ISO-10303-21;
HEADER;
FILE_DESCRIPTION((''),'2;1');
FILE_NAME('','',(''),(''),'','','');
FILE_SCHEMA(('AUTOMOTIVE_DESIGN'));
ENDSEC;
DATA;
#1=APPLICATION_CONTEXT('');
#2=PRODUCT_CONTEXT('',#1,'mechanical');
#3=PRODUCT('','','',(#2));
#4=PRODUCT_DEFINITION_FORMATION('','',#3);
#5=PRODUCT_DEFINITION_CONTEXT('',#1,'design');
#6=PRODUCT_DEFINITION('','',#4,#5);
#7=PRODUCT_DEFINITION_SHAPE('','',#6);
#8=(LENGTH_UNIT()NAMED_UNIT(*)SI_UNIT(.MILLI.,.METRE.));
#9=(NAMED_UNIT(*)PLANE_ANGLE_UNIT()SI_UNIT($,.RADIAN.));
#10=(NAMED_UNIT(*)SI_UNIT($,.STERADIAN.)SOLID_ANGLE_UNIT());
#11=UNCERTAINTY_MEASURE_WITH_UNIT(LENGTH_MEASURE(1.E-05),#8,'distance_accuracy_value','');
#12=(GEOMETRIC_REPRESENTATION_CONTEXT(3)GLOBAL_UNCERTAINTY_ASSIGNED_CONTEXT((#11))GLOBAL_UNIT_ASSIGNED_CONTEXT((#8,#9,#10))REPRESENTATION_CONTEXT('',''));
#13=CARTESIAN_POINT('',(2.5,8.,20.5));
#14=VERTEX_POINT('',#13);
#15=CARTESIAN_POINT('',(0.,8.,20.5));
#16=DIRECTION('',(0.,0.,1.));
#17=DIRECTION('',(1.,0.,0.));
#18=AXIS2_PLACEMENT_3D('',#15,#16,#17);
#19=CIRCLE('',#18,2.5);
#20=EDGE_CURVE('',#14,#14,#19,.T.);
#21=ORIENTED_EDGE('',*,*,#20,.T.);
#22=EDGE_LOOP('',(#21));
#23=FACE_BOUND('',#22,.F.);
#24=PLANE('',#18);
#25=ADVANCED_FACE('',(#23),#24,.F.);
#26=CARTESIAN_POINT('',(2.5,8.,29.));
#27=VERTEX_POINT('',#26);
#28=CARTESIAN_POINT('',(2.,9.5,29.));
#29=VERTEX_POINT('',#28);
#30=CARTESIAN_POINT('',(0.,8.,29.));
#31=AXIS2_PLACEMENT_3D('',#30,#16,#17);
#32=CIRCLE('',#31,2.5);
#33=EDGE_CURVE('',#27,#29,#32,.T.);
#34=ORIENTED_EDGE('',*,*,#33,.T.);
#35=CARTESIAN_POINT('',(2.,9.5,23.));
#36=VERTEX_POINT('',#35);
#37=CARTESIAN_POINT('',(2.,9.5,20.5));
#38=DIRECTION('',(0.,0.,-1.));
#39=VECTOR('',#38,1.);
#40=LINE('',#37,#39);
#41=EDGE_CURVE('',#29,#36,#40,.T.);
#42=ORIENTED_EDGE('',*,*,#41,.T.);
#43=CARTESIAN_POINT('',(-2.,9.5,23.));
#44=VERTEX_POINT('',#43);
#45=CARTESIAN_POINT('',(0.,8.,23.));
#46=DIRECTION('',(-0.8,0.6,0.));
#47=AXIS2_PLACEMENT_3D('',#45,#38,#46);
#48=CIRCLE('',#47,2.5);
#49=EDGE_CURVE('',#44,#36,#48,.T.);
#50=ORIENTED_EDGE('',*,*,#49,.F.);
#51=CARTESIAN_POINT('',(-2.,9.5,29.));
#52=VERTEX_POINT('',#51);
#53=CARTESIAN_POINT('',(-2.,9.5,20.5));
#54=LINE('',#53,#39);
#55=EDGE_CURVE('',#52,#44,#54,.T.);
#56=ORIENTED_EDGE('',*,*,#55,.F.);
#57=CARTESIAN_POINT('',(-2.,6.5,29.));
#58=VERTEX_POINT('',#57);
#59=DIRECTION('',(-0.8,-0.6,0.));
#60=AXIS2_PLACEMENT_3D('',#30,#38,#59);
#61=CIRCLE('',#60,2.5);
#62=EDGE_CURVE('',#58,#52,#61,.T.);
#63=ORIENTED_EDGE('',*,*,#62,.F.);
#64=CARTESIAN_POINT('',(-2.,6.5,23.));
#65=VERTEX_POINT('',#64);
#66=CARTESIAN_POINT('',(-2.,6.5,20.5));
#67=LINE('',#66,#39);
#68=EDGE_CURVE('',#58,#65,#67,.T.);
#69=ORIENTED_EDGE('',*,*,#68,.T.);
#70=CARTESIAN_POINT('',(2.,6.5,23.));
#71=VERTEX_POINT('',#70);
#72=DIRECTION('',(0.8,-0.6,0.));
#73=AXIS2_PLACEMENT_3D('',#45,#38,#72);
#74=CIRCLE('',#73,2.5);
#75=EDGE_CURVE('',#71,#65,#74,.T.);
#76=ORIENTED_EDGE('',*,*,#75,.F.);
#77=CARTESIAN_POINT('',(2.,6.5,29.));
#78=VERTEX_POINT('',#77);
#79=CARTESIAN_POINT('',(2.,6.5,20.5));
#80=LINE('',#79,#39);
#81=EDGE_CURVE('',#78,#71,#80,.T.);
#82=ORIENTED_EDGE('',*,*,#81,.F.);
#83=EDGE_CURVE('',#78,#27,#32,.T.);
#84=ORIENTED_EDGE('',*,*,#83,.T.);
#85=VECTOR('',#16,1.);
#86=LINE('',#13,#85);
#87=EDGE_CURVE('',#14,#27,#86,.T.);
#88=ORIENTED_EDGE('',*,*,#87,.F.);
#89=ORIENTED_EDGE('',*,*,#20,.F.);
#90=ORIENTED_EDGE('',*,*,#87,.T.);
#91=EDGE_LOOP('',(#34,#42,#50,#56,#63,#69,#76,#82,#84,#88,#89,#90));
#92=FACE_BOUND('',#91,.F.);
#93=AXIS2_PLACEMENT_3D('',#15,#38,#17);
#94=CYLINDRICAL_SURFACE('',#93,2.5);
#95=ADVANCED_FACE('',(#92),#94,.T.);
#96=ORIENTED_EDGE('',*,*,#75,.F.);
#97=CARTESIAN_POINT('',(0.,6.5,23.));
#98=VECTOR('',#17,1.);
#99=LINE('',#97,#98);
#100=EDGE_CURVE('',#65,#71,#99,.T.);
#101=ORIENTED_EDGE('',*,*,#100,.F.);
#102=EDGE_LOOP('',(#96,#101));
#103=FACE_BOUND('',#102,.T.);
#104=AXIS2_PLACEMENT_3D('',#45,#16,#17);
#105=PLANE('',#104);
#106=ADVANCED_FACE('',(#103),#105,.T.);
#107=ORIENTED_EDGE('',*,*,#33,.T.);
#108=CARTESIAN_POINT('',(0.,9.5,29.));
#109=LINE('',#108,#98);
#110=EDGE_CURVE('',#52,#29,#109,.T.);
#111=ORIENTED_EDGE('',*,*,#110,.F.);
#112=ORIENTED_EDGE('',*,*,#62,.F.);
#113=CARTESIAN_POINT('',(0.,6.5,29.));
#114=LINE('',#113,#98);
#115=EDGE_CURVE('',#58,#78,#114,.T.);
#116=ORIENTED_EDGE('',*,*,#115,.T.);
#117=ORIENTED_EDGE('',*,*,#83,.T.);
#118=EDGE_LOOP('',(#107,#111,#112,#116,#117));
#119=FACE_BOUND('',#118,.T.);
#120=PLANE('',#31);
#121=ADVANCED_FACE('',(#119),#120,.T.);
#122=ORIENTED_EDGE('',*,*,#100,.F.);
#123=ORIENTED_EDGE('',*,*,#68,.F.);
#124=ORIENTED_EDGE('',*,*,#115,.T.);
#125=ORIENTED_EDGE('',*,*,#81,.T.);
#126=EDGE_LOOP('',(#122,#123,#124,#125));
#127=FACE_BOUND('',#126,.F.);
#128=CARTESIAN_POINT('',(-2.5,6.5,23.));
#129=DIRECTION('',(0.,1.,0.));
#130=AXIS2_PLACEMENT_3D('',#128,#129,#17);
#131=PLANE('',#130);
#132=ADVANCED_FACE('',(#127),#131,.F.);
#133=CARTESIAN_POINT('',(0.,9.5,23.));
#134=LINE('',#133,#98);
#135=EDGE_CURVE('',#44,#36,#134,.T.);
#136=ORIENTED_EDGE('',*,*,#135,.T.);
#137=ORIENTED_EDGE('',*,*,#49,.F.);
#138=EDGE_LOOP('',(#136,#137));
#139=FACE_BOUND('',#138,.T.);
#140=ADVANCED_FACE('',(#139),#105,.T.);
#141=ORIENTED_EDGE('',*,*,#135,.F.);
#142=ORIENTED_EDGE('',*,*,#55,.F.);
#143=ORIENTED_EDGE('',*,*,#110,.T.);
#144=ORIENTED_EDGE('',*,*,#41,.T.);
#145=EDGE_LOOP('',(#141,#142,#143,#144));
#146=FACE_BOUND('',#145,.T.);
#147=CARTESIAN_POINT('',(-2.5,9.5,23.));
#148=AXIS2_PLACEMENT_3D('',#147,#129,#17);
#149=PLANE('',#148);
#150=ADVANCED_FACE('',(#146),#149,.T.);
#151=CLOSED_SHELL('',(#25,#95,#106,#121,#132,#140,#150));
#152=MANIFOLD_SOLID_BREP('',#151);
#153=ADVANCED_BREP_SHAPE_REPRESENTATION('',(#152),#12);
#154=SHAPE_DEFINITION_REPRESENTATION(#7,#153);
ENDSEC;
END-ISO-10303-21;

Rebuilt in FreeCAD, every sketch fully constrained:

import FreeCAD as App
import Part
import Sketcher
from FreeCAD import Vector
Q = App.Units.Quantity

doc = App.newDocument("Part")
body = doc.addObject("PartDesign::Body", "Body")

# Sketch on XY plane
sketch1 = body.newObject("Sketcher::SketchObject", "Sketch")
sketch1.AttachmentSupport = (doc.getObject("XY_Plane"), [""])
sketch1.MapMode = "FlatFace"
sketch1.AttachmentOffset = App.Placement(Vector(0, 0, 23), App.Rotation())
sketch1.addGeometry([
    Part.LineSegment(Vector(-2.5, 1.5, 0), Vector(-2.5, -1.5, 0)),
    Part.LineSegment(Vector(-2.5, -1.5, 0), Vector(2.5, -1.5, 0)),
    Part.LineSegment(Vector(2.5, -1.5, 0), Vector(2.5, 1.5, 0)),
    Part.LineSegment(Vector(2.5, 1.5, 0), Vector(-2.5, 1.5, 0)),
], False)
sketch1.addConstraint([
    Sketcher.Constraint("Coincident", 0, 2, 1, 1),
    Sketcher.Constraint("Coincident", 1, 2, 2, 1),
    Sketcher.Constraint("Coincident", 2, 2, 3, 1),
    Sketcher.Constraint("Coincident", 3, 2, 0, 1),
    Sketcher.Constraint("Vertical", 0),
    Sketcher.Constraint("Horizontal", 1),
    Sketcher.Constraint("Vertical", 2),
    Sketcher.Constraint("Horizontal", 3),
    Sketcher.Constraint("Symmetric", 0, 2, 2, 2, -1, 1),
    Sketcher.Constraint("DistanceX", 1, 1, 1, 2, Q("5 mm")),
    Sketcher.Constraint("DistanceY", 0, 2, 0, 1, Q("3 mm")),
])
pad1 = body.newObject("PartDesign::Pad", "Pad")
pad1.Profile = sketch1
pad1.Length = 6
body2 = doc.addObject("PartDesign::Body", "Body001")

# Sketch on XY plane
sketch2 = body2.newObject("Sketcher::SketchObject", "Sketch001")
sketch2.AttachmentSupport = (doc.getObject("XY_Plane001"), [""])
sketch2.MapMode = "FlatFace"
sketch2.AttachmentOffset = App.Placement(Vector(0, 0, 19), App.Rotation())
sketch2.addGeometry([
    Part.LineSegment(Vector(-2, 2, 0), Vector(-2, -2, 0)),
    Part.LineSegment(Vector(-2, -2, 0), Vector(2, -2, 0)),
    Part.LineSegment(Vector(2, -2, 0), Vector(2, 2, 0)),
    Part.LineSegment(Vector(2, 2, 0), Vector(-2, 2, 0)),
], False)
sketch2.addConstraint([
    Sketcher.Constraint("Coincident", 0, 2, 1, 1),
    Sketcher.Constraint("Coincident", 1, 2, 2, 1),
    Sketcher.Constraint("Coincident", 2, 2, 3, 1),
    Sketcher.Constraint("Coincident", 3, 2, 0, 1),
    Sketcher.Constraint("Vertical", 0),
    Sketcher.Constraint("Horizontal", 1),
    Sketcher.Constraint("Vertical", 2),
    Sketcher.Constraint("Horizontal", 3),
    Sketcher.Constraint("Symmetric", 0, 2, 2, 2, -1, 1),
    Sketcher.Constraint("Equal", 3, 0),
    Sketcher.Constraint("DistanceX", 1, 1, 1, 2, Q("5 mm")),
])
pad2 = body2.newObject("PartDesign::Pad", "Pad001")
pad2.Profile = sketch2
pad2.Length = 4
doc.recompute()

boolean = body2.newObject("PartDesign::Boolean", "Boolean")
boolean.Type = "Fuse"
boolean.addObjects([body])
body3 = doc.addObject("PartDesign::Body", "Body002")

# Sketch on XY plane
sketch3 = body3.newObject("Sketcher::SketchObject", "Sketch002")
sketch3.AttachmentSupport = (doc.getObject("XY_Plane002"), [""])
sketch3.MapMode = "FlatFace"
sketch3.AttachmentOffset = App.Placement(Vector(0, 0, 20.5), App.Rotation())
sketch3.addGeometry(Part.Circle(Vector(0, 0, 0), Vector(0, 0, 1), 2.5), False)
sketch3.addConstraint([
    Sketcher.Constraint("Coincident", 0, 3, -1, 1),
    Sketcher.Constraint("Diameter", 0, Q("5 mm")),
])
pad3 = body3.newObject("PartDesign::Pad", "Pad002")
pad3.Profile = sketch3
pad3.Length = 8.5
doc.recompute()

boolean2 = body3.newObject("PartDesign::Boolean", "Boolean001")
boolean2.Type = "Common"
boolean2.addObjects([body2])
body4 = doc.addObject("PartDesign::Body", "Body003")
doc.recompute()

body3.Placement = App.Placement(Vector(0, 8, 0), App.Rotation(Vector(0, 0, 1), 0))
boolean3 = body4.newObject("PartDesign::Boolean", "Boolean002")
boolean3.Type = "Fuse"
boolean3.addObjects([body3])

doc.recompute()
